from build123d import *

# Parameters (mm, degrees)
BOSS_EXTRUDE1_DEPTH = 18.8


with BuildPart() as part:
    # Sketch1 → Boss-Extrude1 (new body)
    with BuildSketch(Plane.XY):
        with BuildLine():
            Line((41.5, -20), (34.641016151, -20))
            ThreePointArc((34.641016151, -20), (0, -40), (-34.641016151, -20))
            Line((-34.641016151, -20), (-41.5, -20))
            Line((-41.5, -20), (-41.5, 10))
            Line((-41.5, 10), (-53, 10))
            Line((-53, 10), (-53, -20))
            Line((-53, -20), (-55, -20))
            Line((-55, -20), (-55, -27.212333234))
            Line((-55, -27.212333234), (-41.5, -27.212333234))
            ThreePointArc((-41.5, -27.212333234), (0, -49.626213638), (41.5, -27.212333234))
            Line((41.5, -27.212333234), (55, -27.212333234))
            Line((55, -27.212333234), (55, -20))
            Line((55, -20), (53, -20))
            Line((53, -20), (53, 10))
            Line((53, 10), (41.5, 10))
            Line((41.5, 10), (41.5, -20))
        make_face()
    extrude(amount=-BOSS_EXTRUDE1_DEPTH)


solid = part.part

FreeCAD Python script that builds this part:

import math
import FreeCAD as App
import Part
import Sketcher
from FreeCAD import Vector
Q = App.Units.Quantity

doc = App.newDocument("Part")
body = doc.addObject("PartDesign::Body", "Body")

# Sketch on XY plane
sketch1 = body.newObject("Sketcher::SketchObject", "Sketch")
sketch1.AttachmentSupport = (doc.getObject("XY_Plane"), [""])
sketch1.MapMode = "FlatFace"
sketch1.addGeometry(Part.LineSegment(Vector(41.5, -20, 0), Vector(34.641016, -20, 0)), False)
sketch1.addGeometry(Part.ArcOfCircle(Part.Circle(Vector(0, 0, 0), Vector(0, 0, 1), 40), math.radians(-150), math.radians(-30)), False)
sketch1.addGeometry(Part.LineSegment(Vector(-34.641016, -20, 0), Vector(-41.5, -20, 0)), False)
sketch1.addGeometry(Part.LineSegment(Vector(-41.5, -20, 0), Vector(-41.5, 10, 0)), False)
sketch1.addGeometry(Part.LineSegment(Vector(-41.5, 10, 0), Vector(-53, 10, 0)), False)
sketch1.addGeometry(Part.LineSegment(Vector(-53, 10, 0), Vector(-53, -20, 0)), False)
sketch1.addGeometry(Part.LineSegment(Vector(-53, -20, 0), Vector(-55, -20, 0)), False)
sketch1.addGeometry(Part.LineSegment(Vector(-55, -20, 0), Vector(-55, -27.212333, 0)), False)
sketch1.addGeometry(Part.LineSegment(Vector(-55, -27.212333, 0), Vector(-41.5, -27.212333, 0)), False)
sketch1.addGeometry(Part.ArcOfCircle(Part.Circle(Vector(0, 0, 0), Vector(0, 0, 1), 49.626214), math.radians(-146.746388), math.radians(-33.253612)), False)
sketch1.addGeometry(Part.LineSegment(Vector(41.5, -27.212333, 0), Vector(55, -27.212333, 0)), False)
sketch1.addGeometry(Part.LineSegment(Vector(55, -27.212333, 0), Vector(55, -20, 0)), False)
sketch1.addGeometry(Part.LineSegment(Vector(55, -20, 0), Vector(53, -20, 0)), False)
sketch1.addGeometry(Part.LineSegment(Vector(53, -20, 0), Vector(53, 10, 0)), False)
sketch1.addGeometry(Part.LineSegment(Vector(53, 10, 0), Vector(41.5, 10, 0)), False)
sketch1.addGeometry(Part.LineSegment(Vector(41.5, 10, 0), Vector(41.5, -20, 0)), False)
sketch1.addConstraint(Sketcher.Constraint("Coincident", 0, 2, 1, 2))
sketch1.addConstraint(Sketcher.Constraint("Coincident", 1, 1, 2, 1))
sketch1.addConstraint(Sketcher.Constraint("Coincident", 2, 2, 3, 1))
sketch1.addConstraint(Sketcher.Constraint("Coincident", 3, 2, 4, 1))
sketch1.addConstraint(Sketcher.Constraint("Coincident", 4, 2, 5, 1))
sketch1.addConstraint(Sketcher.Constraint("Coincident", 5, 2, 6, 1))
sketch1.addConstraint(Sketcher.Constraint("Coincident", 6, 2, 7, 1))
sketch1.addConstraint(Sketcher.Constraint("Coincident", 7, 2, 8, 1))
sketch1.addConstraint(Sketcher.Constraint("Coincident", 8, 2, 9, 1))
sketch1.addConstraint(Sketcher.Constraint("Coincident", 9, 2, 10, 1))
sketch1.addConstraint(Sketcher.Constraint("Coincident", 10, 2, 11, 1))
sketch1.addConstraint(Sketcher.Constraint("Coincident", 11, 2, 12, 1))
sketch1.addConstraint(Sketcher.Constraint("Coincident", 12, 2, 13, 1))
sketch1.addConstraint(Sketcher.Constraint("Coincident", 13, 2, 14, 1))
sketch1.addConstraint(Sketcher.Constraint("Coincident", 14, 2, 15, 1))
sketch1.addConstraint(Sketcher.Constraint("Coincident", 15, 2, 0, 1))
sketch1.addConstraint(Sketcher.Constraint("Horizontal", 0))
sketch1.addConstraint(Sketcher.Constraint("Horizontal", 2))
sketch1.addConstraint(Sketcher.Constraint("Vertical", 3))
sketch1.addConstraint(Sketcher.Constraint("Horizontal", 4))
sketch1.addConstraint(Sketcher.Constraint("Vertical", 5))
sketch1.addConstraint(Sketcher.Constraint("Horizontal", 6))
sketch1.addConstraint(Sketcher.Constraint("Vertical", 7))
sketch1.addConstraint(Sketcher.Constraint("Horizontal", 8))
sketch1.addConstraint(Sketcher.Constraint("Horizontal", 10))
sketch1.addConstraint(Sketcher.Constraint("Vertical", 11))
sketch1.addConstraint(Sketcher.Constraint("Horizontal", 12))
sketch1.addConstraint(Sketcher.Constraint("Vertical", 13))
sketch1.addConstraint(Sketcher.Constraint("Horizontal", 14))
sketch1.addConstraint(Sketcher.Constraint("Vertical", 15))
sketch1.addConstraint(Sketcher.Constraint("Coincident", 1, 3, -1, 1))
sketch1.addConstraint(Sketcher.Constraint("Coincident", 9, 3, -1, 1))
sketch1.addConstraint(Sketcher.Constraint("Symmetric", 7, 2, 10, 2, -2))
sketch1.addConstraint(Sketcher.Constraint("Symmetric", 5, 2, 12, 2, -2))
sketch1.addConstraint(Sketcher.Constraint("Symmetric", 3, 2, 14, 2, -2))
sketch1.addConstraint(Sketcher.Constraint("Horizontal", 0, 2, 1, 1))
sketch1.addConstraint(Sketcher.Constraint("Horizontal", 2, 2, 5, 2))
sketch1.addConstraint(Sketcher.Constraint("Vertical", 3, 2, 8, 2))
sketch1.addConstraint(Sketcher.Constraint("Radius", 1, Q("40 mm")))
sketch1.addConstraint(Sketcher.Constraint("DistanceX", 6, 2, 6, 1, Q("2 mm")))
sketch1.addConstraint(Sketcher.Constraint("DistanceY", 3, 1, 3, 2, Q("30 mm")))
sketch1.addConstraint(Sketcher.Constraint("DistanceX", 4, 2, 4, 1, Q("11.5 mm")))
sketch1.addConstraint(Sketcher.Constraint("DistanceY", 0, 2, -1, 1, Q("20 mm")))
sketch1.addConstraint(Sketcher.Constraint("DistanceX", 4, 2, -1, 1, Q("53 mm")))
sketch1.addConstraint(Sketcher.Constraint("Radius", 9, Q("49.626214 mm")))
pad1 = body.newObject("PartDesign::Pad", "Pad")
pad1.Profile = sketch1
pad1.Length = 18.8
pad1.Reversed = True

doc.recompute()
